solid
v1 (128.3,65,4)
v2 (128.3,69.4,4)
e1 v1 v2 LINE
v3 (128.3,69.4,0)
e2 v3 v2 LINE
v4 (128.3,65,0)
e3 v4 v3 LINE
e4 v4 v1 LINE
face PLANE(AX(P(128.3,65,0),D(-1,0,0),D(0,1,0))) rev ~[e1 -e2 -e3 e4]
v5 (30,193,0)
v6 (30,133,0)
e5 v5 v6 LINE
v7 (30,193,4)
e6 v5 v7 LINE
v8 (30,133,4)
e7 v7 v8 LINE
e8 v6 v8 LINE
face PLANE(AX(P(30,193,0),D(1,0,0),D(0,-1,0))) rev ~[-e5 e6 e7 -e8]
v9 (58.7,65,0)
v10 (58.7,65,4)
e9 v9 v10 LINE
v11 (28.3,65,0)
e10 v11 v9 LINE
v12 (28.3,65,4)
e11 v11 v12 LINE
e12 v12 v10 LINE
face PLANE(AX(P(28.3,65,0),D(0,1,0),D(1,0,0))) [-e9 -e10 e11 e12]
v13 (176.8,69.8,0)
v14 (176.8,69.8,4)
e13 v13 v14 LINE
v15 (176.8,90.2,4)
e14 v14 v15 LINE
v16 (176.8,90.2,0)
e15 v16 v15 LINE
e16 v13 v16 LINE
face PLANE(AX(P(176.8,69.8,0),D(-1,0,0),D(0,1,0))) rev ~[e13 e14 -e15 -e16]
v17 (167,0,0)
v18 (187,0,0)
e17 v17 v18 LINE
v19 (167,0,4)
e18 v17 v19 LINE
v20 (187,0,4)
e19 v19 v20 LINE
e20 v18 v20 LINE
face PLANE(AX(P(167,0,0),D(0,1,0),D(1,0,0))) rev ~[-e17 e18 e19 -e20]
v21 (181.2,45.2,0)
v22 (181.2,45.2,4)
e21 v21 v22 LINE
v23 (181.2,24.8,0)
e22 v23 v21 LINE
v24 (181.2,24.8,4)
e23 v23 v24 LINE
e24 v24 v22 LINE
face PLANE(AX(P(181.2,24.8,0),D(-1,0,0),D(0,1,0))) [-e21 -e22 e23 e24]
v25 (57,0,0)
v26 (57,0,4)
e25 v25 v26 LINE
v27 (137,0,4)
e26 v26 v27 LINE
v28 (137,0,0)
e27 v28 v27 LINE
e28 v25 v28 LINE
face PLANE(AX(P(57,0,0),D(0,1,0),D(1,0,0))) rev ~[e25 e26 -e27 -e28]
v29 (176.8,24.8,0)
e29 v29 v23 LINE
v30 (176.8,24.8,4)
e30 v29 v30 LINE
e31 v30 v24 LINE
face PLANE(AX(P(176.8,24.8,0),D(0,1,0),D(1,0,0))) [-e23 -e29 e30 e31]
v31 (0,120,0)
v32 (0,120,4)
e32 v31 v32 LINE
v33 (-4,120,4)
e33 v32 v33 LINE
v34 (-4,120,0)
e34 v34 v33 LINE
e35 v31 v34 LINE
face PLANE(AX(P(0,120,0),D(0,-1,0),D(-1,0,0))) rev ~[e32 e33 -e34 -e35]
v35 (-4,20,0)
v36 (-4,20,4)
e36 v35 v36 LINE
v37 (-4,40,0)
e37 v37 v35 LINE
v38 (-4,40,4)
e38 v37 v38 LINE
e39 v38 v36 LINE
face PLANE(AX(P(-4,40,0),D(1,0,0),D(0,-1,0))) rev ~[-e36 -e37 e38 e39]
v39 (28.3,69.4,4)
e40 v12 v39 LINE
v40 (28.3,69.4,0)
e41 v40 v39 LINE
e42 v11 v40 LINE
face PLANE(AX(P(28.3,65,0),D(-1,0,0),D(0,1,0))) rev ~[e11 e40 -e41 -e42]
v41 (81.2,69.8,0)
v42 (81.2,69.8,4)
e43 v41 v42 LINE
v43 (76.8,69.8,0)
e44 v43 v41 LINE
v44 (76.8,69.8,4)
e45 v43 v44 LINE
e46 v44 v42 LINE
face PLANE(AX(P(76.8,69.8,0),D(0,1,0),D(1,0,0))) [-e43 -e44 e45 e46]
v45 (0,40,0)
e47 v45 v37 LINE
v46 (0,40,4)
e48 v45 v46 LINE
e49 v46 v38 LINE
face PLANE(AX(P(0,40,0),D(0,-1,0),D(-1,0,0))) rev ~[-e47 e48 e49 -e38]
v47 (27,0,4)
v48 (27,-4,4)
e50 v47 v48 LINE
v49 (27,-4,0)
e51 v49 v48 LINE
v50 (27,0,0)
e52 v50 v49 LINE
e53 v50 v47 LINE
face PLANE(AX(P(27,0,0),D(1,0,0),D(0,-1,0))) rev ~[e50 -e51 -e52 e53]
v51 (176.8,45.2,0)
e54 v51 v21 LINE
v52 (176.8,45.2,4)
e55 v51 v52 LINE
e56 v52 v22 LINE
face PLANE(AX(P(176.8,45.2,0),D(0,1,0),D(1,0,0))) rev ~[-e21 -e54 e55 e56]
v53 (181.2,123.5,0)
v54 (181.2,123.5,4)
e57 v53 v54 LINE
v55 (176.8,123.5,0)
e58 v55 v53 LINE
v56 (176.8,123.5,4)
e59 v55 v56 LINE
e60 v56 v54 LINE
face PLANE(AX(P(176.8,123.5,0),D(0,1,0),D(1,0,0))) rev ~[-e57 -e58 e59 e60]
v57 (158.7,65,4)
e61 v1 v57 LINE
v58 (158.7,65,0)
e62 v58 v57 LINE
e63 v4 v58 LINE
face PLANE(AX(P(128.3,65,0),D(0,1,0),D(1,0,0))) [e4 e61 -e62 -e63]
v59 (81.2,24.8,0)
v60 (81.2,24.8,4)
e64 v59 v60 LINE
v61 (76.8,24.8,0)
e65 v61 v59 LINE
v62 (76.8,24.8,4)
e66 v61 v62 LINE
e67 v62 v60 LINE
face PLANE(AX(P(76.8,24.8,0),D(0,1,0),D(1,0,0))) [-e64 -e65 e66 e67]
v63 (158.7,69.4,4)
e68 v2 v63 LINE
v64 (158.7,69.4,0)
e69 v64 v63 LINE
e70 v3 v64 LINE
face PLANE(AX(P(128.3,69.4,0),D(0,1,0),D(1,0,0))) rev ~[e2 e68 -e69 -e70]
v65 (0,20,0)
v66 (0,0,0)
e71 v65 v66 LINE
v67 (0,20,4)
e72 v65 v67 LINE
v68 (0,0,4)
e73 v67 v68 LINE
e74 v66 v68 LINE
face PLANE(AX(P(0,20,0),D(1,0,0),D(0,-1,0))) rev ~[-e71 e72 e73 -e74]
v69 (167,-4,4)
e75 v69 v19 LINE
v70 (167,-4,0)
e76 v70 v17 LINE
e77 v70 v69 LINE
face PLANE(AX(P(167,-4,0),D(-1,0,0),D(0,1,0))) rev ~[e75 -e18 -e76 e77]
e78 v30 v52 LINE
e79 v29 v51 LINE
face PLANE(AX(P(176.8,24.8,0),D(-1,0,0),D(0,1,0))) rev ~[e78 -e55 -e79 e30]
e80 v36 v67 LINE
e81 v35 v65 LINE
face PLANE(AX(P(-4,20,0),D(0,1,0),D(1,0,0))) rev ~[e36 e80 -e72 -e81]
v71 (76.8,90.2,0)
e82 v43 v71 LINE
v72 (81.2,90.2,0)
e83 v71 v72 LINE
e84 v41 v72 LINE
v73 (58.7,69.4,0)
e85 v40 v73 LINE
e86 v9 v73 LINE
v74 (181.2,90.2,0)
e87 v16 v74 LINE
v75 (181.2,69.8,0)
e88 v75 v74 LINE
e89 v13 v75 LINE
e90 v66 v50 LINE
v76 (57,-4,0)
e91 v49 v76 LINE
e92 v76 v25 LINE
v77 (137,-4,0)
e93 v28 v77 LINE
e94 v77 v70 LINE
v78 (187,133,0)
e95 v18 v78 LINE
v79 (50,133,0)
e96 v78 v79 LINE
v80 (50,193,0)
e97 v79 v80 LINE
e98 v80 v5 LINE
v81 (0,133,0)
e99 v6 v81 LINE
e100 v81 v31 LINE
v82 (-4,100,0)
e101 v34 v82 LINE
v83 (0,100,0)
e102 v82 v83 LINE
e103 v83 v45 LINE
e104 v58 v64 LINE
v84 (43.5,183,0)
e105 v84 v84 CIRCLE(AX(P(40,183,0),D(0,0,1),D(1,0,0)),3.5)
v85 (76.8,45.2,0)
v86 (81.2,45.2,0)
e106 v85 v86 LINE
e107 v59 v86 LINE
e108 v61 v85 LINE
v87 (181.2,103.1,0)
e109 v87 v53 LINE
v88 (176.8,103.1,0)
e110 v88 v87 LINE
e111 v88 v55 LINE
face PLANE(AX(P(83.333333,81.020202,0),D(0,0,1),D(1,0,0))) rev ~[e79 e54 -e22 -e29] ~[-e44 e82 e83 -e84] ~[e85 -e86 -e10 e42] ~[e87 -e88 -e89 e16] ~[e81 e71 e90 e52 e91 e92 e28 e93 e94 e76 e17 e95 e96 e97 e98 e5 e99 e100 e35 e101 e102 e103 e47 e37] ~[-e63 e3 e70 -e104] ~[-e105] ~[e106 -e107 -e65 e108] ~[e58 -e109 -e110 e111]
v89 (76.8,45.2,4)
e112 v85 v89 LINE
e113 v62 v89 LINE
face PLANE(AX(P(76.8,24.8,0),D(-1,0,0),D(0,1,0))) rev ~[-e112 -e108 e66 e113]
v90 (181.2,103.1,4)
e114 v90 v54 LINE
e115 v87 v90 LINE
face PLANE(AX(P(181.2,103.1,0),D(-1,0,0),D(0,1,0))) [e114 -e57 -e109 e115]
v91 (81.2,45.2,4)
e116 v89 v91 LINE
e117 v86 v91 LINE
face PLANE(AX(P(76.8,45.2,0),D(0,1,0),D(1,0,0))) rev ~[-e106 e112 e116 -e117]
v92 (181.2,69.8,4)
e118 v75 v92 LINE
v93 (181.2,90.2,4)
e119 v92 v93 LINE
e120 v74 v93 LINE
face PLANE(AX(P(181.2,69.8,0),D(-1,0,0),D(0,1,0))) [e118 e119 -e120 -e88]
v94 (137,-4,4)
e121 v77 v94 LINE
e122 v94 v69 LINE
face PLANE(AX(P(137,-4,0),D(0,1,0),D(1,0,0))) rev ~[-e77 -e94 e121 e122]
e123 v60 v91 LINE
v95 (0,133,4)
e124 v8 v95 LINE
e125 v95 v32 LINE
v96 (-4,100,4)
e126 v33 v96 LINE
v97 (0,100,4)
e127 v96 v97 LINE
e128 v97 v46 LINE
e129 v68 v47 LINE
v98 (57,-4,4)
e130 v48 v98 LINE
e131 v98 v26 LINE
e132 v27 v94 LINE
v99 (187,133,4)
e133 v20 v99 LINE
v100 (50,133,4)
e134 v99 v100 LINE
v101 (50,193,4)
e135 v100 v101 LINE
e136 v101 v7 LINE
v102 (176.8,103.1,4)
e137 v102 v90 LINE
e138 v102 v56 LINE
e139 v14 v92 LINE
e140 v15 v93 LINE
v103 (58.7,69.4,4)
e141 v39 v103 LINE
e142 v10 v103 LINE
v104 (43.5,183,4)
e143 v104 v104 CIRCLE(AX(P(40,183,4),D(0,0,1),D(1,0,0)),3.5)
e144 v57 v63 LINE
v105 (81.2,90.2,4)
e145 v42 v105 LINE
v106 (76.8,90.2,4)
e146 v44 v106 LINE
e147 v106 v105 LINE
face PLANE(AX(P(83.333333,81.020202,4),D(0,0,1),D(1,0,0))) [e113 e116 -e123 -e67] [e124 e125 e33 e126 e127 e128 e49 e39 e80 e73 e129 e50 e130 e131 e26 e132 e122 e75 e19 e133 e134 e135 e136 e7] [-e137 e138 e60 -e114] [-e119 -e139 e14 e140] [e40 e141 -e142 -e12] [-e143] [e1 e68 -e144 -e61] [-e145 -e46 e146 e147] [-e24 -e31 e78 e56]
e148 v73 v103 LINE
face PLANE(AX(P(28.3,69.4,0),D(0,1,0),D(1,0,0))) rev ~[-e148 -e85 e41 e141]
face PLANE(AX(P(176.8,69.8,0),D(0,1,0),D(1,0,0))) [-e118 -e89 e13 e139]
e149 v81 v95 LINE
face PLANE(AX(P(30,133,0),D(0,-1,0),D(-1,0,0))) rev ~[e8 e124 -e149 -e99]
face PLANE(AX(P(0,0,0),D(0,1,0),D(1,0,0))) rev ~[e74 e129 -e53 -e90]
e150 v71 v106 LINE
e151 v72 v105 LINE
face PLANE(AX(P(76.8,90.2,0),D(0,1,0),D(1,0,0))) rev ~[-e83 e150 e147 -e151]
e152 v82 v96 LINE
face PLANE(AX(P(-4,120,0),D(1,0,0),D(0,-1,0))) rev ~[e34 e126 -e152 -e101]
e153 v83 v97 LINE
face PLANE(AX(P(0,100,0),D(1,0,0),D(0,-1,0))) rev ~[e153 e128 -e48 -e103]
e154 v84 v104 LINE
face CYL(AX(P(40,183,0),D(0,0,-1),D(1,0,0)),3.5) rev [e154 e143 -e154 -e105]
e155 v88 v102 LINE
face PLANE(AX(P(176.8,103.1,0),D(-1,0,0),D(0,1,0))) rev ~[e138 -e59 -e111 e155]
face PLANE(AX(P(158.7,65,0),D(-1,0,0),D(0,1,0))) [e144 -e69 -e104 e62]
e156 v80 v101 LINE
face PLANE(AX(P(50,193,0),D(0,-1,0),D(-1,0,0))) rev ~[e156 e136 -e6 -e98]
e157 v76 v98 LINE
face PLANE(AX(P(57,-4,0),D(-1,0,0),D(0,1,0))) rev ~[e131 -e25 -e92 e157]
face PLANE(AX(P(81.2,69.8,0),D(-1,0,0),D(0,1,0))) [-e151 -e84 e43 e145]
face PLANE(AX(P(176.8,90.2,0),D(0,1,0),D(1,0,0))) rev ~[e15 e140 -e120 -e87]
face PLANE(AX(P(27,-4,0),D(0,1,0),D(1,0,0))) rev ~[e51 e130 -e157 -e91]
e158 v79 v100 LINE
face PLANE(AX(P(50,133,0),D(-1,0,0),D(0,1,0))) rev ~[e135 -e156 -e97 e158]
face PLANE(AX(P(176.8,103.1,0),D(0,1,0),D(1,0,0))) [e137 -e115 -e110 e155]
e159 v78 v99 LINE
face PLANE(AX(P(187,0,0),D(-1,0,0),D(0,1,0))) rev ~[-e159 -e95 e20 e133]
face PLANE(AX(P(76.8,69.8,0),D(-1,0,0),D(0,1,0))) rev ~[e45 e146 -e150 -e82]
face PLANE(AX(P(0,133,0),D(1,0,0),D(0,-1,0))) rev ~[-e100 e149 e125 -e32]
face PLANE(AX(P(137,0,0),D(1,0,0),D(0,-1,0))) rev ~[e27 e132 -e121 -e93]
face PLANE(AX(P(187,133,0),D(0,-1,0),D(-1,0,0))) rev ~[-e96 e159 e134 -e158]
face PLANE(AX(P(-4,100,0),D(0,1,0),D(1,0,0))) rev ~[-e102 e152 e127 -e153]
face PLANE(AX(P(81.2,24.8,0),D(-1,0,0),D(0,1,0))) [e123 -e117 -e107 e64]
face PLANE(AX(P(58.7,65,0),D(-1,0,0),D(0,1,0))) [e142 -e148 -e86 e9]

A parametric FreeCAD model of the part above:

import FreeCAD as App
import Part
import Sketcher

V = App.Vector
Q = App.Units.Quantity


def add_polygon(sketch, points):
    """Adds a closed chain of lines whose ends are joined by coincident constraints."""
    first, n = sketch.GeometryCount, len(points)
    for a, b in zip(points, points[1:] + points[:1]):
        sketch.addGeometry(Part.LineSegment(App.Vector(*a, 0), App.Vector(*b, 0)), False)
    for i in range(n):
        sketch.addConstraint(Sketcher.Constraint("Coincident", first + i, 2, first + (i + 1) % n, 1))

doc = App.newDocument("Part")
body = doc.addObject("PartDesign::Body", "Body")

# Sketch on XY plane
sketch1 = body.newObject("Sketcher::SketchObject", "Sketch")
sketch1.AttachmentSupport = (doc.getObject("XY_Plane"), [""])
sketch1.MapMode = "FlatFace"
add_polygon(sketch1, [(0, 20), (0, 0), (27, 0), (27, -4), (57, -4), (57, 0), (137, 0), (137, -4), (167, -4), (167, 0), (187, 0), (187, 133), (50, 133), (50, 193), (30, 193), (30, 133), (0, 133), (0, 120), (-4, 120), (-4, 100), (0, 100), (0, 40), (-4, 40), (-4, 20)])  # lines 0-23
add_polygon(sketch1, [(81.2, 24.8), (76.8, 24.8), (76.8, 45.2), (81.2, 45.2)])  # lines 24-27
add_polygon(sketch1, [(58.7, 65), (28.3, 65), (28.3, 69.4), (58.7, 69.4)])  # lines 28-31
add_polygon(sketch1, [(81.2, 69.8), (76.8, 69.8), (76.8, 90.2), (81.2, 90.2)])  # lines 32-35
add_polygon(sketch1, [(181.2, 24.8), (176.8, 24.8), (176.8, 45.2), (181.2, 45.2)])  # lines 36-39
add_polygon(sketch1, [(158.7, 65), (128.3, 65), (128.3, 69.4), (158.7, 69.4)])  # lines 40-43
add_polygon(sketch1, [(181.2, 69.8), (176.8, 69.8), (176.8, 90.2), (181.2, 90.2)])  # lines 44-47
sketch1.addGeometry(Part.Circle(V(40, 183, 0), V(0, 0, 1), 3.5), False)  # 48
add_polygon(sketch1, [(181.2, 103.1), (176.8, 103.1), (176.8, 123.5), (181.2, 123.5)])  # lines 49-52
sketch1.addConstraint(Sketcher.Constraint("Vertical", 0))
sketch1.addConstraint(Sketcher.Constraint("Horizontal", 1))
sketch1.addConstraint(Sketcher.Constraint("Vertical", 2))
sketch1.addConstraint(Sketcher.Constraint("Horizontal", 3))
sketch1.addConstraint(Sketcher.Constraint("Vertical", 4))
sketch1.addConstraint(Sketcher.Constraint("Horizontal", 5))
sketch1.addConstraint(Sketcher.Constraint("Vertical", 6))
sketch1.addConstraint(Sketcher.Constraint("Horizontal", 7))
sketch1.addConstraint(Sketcher.Constraint("Vertical", 8))
sketch1.addConstraint(Sketcher.Constraint("Horizontal", 9))
sketch1.addConstraint(Sketcher.Constraint("Vertical", 10))
sketch1.addConstraint(Sketcher.Constraint("Horizontal", 11))
sketch1.addConstraint(Sketcher.Constraint("Vertical", 12))
sketch1.addConstraint(Sketcher.Constraint("Horizontal", 13))
sketch1.addConstraint(Sketcher.Constraint("Vertical", 14))
sketch1.addConstraint(Sketcher.Constraint("Horizontal", 15))
sketch1.addConstraint(Sketcher.Constraint("Vertical", 16))
sketch1.addConstraint(Sketcher.Constraint("Horizontal", 17))
sketch1.addConstraint(Sketcher.Constraint("Vertical", 18))
sketch1.addConstraint(Sketcher.Constraint("Horizontal", 19))
sketch1.addConstraint(Sketcher.Constraint("Vertical", 20))
sketch1.addConstraint(Sketcher.Constraint("Horizontal", 21))
sketch1.addConstraint(Sketcher.Constraint("Vertical", 22))
sketch1.addConstraint(Sketcher.Constraint("Horizontal", 23))
sketch1.addConstraint(Sketcher.Constraint("Horizontal", 24))
sketch1.addConstraint(Sketcher.Constraint("Vertical", 25))
sketch1.addConstraint(Sketcher.Constraint("Horizontal", 26))
sketch1.addConstraint(Sketcher.Constraint("Vertical", 27))
sketch1.addConstraint(Sketcher.Constraint("Horizontal", 28))
sketch1.addConstraint(Sketcher.Constraint("Vertical", 29))
sketch1.addConstraint(Sketcher.Constraint("Horizontal", 30))
sketch1.addConstraint(Sketcher.Constraint("Vertical", 31))
sketch1.addConstraint(Sketcher.Constraint("Horizontal", 32))
sketch1.addConstraint(Sketcher.Constraint("Vertical", 33))
sketch1.addConstraint(Sketcher.Constraint("Horizontal", 34))
sketch1.addConstraint(Sketcher.Constraint("Vertical", 35))
sketch1.addConstraint(Sketcher.Constraint("Horizontal", 36))
sketch1.addConstraint(Sketcher.Constraint("Vertical", 37))
sketch1.addConstraint(Sketcher.Constraint("Horizontal", 38))
sketch1.addConstraint(Sketcher.Constraint("Vertical", 39))
sketch1.addConstraint(Sketcher.Constraint("Horizontal", 40))
sketch1.addConstraint(Sketcher.Constraint("Vertical", 41))
sketch1.addConstraint(Sketcher.Constraint("Horizontal", 42))
sketch1.addConstraint(Sketcher.Constraint("Vertical", 43))
sketch1.addConstraint(Sketcher.Constraint("Horizontal", 44))
sketch1.addConstraint(Sketcher.Constraint("Vertical", 45))
sketch1.addConstraint(Sketcher.Constraint("Horizontal", 46))
sketch1.addConstraint(Sketcher.Constraint("Vertical", 47))
sketch1.addConstraint(Sketcher.Constraint("Horizontal", 49))
sketch1.addConstraint(Sketcher.Constraint("Vertical", 50))
sketch1.addConstraint(Sketcher.Constraint("Horizontal", 51))
sketch1.addConstraint(Sketcher.Constraint("Vertical", 52))
sketch1.addConstraint(Sketcher.Constraint("Coincident", 0, 2, -1, 1))
sketch1.addConstraint(Sketcher.Constraint("PointOnObject", 4, 2, -1))
sketch1.addConstraint(Sketcher.Constraint("PointOnObject", 8, 2, -1))
sketch1.addConstraint(Sketcher.Constraint("PointOnObject", 15, 2, -2))
sketch1.addConstraint(Sketcher.Constraint("PointOnObject", 19, 2, -2))
sketch1.addConstraint(Sketcher.Constraint("Horizontal", 3, 2, 6, 2))
sketch1.addConstraint(Sketcher.Constraint("Horizontal", 11, 2, 14, 2))
sketch1.addConstraint(Sketcher.Constraint("Horizontal", 27, 2, 36, 2))
sketch1.addConstraint(Sketcher.Constraint("Horizontal", 26, 2, 37, 2))
sketch1.addConstraint(Sketcher.Constraint("Horizontal", 31, 2, 40, 2))
sketch1.addConstraint(Sketcher.Constraint("Horizontal", 30, 2, 41, 2))
sketch1.addConstraint(Sketcher.Constraint("Horizontal", 35, 2, 44, 2))
sketch1.addConstraint(Sketcher.Constraint("Horizontal", 34, 2, 45, 2))
sketch1.addConstraint(Sketcher.Constraint("Vertical", 18, 2, 21, 2))
sketch1.addConstraint(Sketcher.Constraint("Vertical", 25, 2, 32, 2))
sketch1.addConstraint(Sketcher.Constraint("Vertical", 27, 2, 34, 2))
sketch1.addConstraint(Sketcher.Constraint("Vertical", 37, 2, 44, 2))
sketch1.addConstraint(Sketcher.Constraint("Vertical", 39, 2, 46, 2))
sketch1.addConstraint(Sketcher.Constraint("Vertical", 45, 2, 49, 2))
sketch1.addConstraint(Sketcher.Constraint("Vertical", 47, 2, 51, 2))
sketch1.addConstraint(Sketcher.Constraint("Equal", 3, 7))
sketch1.addConstraint(Sketcher.Constraint("Equal", 9, 13))
sketch1.addConstraint(Sketcher.Constraint("Equal", 7, 15))
sketch1.addConstraint(Sketcher.Constraint("Equal", 34, 36))
sketch1.addConstraint(Sketcher.Constraint("Equal", 30, 40))
sketch1.addConstraint(Sketcher.Constraint("Equal", 13, 0))
sketch1.addConstraint(Sketcher.Constraint("Equal", 23, 2))
sketch1.addConstraint(Sketcher.Constraint("Equal", 0, 18))
sketch1.addConstraint(Sketcher.Constraint("Equal", 14, 20))
sketch1.addConstraint(Sketcher.Constraint("Equal", 18, 22))
sketch1.addConstraint(Sketcher.Constraint("Equal", 51, 29))
sketch1.addConstraint(Sketcher.Constraint("Equal", 27, 33))
sketch1.addConstraint(Sketcher.Constraint("Equal", 47, 50))
sketch1.addConstraint(Sketcher.Constraint("Diameter", 48, Q("7 mm")))
sketch1.addConstraint(Sketcher.Constraint("DistanceX", 1, 1, 1, 2, Q("27 mm")))
sketch1.addConstraint(Sketcher.Constraint("DistanceX", 3, 1, 3, 2, Q("30 mm")))
sketch1.addConstraint(Sketcher.Constraint("DistanceX", 5, 1, 5, 2, Q("80 mm")))
sketch1.addConstraint(Sketcher.Constraint("DistanceX", 9, 1, 9, 2, Q("20 mm")))
sketch1.addConstraint(Sketcher.Constraint("DistanceX", 17, 2, 17, 1, Q("4 mm")))
sketch1.addConstraint(Sketcher.Constraint("DistanceY", 10, 1, 10, 2, Q("133 mm")))
sketch1.addConstraint(Sketcher.Constraint("DistanceY", 12, 1, 12, 2, Q("60 mm")))
sketch1.addConstraint(Sketcher.Constraint("DistanceX", 24, 2, 24, 1, Q("4.4 mm")))
sketch1.addConstraint(Sketcher.Constraint("DistanceX", 28, 2, 28, 1, Q("30.4 mm")))
sketch1.addConstraint(Sketcher.Constraint("DistanceY", 25, 1, 25, 2, Q("20.4 mm")))
sketch1.addConstraint(Sketcher.Constraint("DistanceX", -1, 1, 48, 3, Q("40 mm")))
sketch1.addConstraint(Sketcher.Constraint("DistanceY", -1, 1, 48, 3, Q("183 mm")))
sketch1.addConstraint(Sketcher.Constraint("DistanceY", -1, 1, 28, 2, Q("65 mm")))
sketch1.addConstraint(Sketcher.Constraint("DistanceY", 24, 2, 32, 2, Q("45 mm")))
sketch1.addConstraint(Sketcher.Constraint("DistanceX", -1, 1, 24, 2, Q("76.8 mm")))
sketch1.addConstraint(Sketcher.Constraint("DistanceY", -1, 1, 24, 2, Q("24.8 mm")))
sketch1.addConstraint(Sketcher.Constraint("DistanceX", -1, 1, 28, 2, Q("28.3 mm")))
sketch1.addConstraint(Sketcher.Constraint("DistanceX", -1, 1, 36, 2, Q("176.8 mm")))
sketch1.addConstraint(Sketcher.Constraint("DistanceX", -1, 1, 40, 2, Q("128.3 mm")))
sketch1.addConstraint(Sketcher.Constraint("DistanceY", -1, 1, 49, 2, Q("103.1 mm")))
pad1 = body.newObject("PartDesign::Pad", "Pad")
pad1.Profile = sketch1
pad1.Length = 4

doc.recompute()
